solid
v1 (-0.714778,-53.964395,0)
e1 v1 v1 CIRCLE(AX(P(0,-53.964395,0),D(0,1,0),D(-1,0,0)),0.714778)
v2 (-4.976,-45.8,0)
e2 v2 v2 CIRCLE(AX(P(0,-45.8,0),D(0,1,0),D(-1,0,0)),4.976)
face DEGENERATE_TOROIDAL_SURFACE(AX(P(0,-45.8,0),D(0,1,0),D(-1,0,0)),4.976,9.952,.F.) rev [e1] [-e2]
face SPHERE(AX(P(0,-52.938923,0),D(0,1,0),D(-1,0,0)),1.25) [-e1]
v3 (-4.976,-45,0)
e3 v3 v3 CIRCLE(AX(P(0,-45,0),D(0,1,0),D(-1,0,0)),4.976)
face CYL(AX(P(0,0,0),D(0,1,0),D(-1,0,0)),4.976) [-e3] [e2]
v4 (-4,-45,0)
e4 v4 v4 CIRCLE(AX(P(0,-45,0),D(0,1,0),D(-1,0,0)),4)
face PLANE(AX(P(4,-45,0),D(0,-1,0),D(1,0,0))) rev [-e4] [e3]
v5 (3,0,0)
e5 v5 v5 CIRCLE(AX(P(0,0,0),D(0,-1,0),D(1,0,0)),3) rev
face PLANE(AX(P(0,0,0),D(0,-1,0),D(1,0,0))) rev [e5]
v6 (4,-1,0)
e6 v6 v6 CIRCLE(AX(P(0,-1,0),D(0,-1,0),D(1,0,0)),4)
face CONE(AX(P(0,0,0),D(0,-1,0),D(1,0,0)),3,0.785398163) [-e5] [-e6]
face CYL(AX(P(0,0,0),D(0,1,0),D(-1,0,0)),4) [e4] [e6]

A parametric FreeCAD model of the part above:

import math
import FreeCAD as App
import Part
import Sketcher


def edges_at(feature, points):
    """Names of the edges that pass closest to the given points."""
    edges = feature.Shape.Edges
    near = lambda p: min(range(len(edges)), key=lambda i: edges[i].distToShape(Part.Vertex(*p))[0])
    return sorted({f"Edge{near(p) + 1}" for p in points})

doc = App.newDocument("Part")
body = doc.addObject("PartDesign::Body", "Body")

sketch1 = body.newObject("Sketcher::SketchObject", "Sketch")
sketch1.AttachmentSupport = (doc.getObject("XY_Plane"), [""])
sketch1.MapMode = "FlatFace"
sketch1.addGeometry([
    Part.LineSegment(App.Vector(4, 0, 0), App.Vector(0, 0, 0)),
    Part.LineSegment(App.Vector(0, 0, 0), App.Vector(0, -54.2, 0)),
    Part.ArcOfCircle(Part.Circle(App.Vector(0, -52.9, 0), App.Vector(0, 0, 1), 1.2), math.radians(-90), math.radians(-55)),
    Part.ArcOfCircle(Part.Circle(App.Vector(-5, -45.8, 0), App.Vector(0, 0, 1), 10), math.radians(-55), math.radians(0)),
    Part.LineSegment(App.Vector(5, -45.8, 0), App.Vector(5, -45, 0)),
    Part.LineSegment(App.Vector(5, -45, 0), App.Vector(4, -45, 0)),
    Part.LineSegment(App.Vector(4, -45, 0), App.Vector(4, 0, 0)),
], False)
sketch1.addConstraint([
    Sketcher.Constraint("Coincident", 0, 2, 1, 1),
    Sketcher.Constraint("Coincident", 1, 2, 2, 1),
    Sketcher.Constraint("Tangent", 2, 2, 3, 1),
    Sketcher.Constraint("Tangent", 3, 2, 4, 1),
    Sketcher.Constraint("Coincident", 4, 2, 5, 1),
    Sketcher.Constraint("Coincident", 5, 2, 6, 1),
    Sketcher.Constraint("Coincident", 6, 2, 0, 1),
    Sketcher.Constraint("Horizontal", 0),
    Sketcher.Constraint("Vertical", 1),
    Sketcher.Constraint("Vertical", 4),
    Sketcher.Constraint("Horizontal", 5),
    Sketcher.Constraint("Vertical", 6),
    Sketcher.Constraint("Coincident", 0, 2, -1, 1),
    Sketcher.Constraint("PointOnObject", 2, 3, -2),
    Sketcher.Constraint("DistanceX", 0, 2, 0, 1, 4.0),
    Sketcher.Constraint("DistanceY", 6, 1, 6, 2, 45.0),
    Sketcher.Constraint("Radius", 2, 1.25),
    Sketcher.Constraint("DistanceY", 4, 1, 4, 2, 0.8),
    Sketcher.Constraint("Radius", 3, 9.952),
    Sketcher.Constraint("DistanceX", 5, 2, 5, 1, 0.976),
])
revolution = body.newObject("PartDesign::Revolution", "Revolution")
revolution.Profile = sketch1
revolution.ReferenceAxis = (sketch1, ["V_Axis"])
revolution.Angle = 360
doc.recompute()

chamfer = body.newObject("PartDesign::Chamfer", "Chamfer")
chamfer.Base = (revolution, edges_at(revolution, [(4, 0, 0)]))
chamfer.Size = 1

doc.recompute()
